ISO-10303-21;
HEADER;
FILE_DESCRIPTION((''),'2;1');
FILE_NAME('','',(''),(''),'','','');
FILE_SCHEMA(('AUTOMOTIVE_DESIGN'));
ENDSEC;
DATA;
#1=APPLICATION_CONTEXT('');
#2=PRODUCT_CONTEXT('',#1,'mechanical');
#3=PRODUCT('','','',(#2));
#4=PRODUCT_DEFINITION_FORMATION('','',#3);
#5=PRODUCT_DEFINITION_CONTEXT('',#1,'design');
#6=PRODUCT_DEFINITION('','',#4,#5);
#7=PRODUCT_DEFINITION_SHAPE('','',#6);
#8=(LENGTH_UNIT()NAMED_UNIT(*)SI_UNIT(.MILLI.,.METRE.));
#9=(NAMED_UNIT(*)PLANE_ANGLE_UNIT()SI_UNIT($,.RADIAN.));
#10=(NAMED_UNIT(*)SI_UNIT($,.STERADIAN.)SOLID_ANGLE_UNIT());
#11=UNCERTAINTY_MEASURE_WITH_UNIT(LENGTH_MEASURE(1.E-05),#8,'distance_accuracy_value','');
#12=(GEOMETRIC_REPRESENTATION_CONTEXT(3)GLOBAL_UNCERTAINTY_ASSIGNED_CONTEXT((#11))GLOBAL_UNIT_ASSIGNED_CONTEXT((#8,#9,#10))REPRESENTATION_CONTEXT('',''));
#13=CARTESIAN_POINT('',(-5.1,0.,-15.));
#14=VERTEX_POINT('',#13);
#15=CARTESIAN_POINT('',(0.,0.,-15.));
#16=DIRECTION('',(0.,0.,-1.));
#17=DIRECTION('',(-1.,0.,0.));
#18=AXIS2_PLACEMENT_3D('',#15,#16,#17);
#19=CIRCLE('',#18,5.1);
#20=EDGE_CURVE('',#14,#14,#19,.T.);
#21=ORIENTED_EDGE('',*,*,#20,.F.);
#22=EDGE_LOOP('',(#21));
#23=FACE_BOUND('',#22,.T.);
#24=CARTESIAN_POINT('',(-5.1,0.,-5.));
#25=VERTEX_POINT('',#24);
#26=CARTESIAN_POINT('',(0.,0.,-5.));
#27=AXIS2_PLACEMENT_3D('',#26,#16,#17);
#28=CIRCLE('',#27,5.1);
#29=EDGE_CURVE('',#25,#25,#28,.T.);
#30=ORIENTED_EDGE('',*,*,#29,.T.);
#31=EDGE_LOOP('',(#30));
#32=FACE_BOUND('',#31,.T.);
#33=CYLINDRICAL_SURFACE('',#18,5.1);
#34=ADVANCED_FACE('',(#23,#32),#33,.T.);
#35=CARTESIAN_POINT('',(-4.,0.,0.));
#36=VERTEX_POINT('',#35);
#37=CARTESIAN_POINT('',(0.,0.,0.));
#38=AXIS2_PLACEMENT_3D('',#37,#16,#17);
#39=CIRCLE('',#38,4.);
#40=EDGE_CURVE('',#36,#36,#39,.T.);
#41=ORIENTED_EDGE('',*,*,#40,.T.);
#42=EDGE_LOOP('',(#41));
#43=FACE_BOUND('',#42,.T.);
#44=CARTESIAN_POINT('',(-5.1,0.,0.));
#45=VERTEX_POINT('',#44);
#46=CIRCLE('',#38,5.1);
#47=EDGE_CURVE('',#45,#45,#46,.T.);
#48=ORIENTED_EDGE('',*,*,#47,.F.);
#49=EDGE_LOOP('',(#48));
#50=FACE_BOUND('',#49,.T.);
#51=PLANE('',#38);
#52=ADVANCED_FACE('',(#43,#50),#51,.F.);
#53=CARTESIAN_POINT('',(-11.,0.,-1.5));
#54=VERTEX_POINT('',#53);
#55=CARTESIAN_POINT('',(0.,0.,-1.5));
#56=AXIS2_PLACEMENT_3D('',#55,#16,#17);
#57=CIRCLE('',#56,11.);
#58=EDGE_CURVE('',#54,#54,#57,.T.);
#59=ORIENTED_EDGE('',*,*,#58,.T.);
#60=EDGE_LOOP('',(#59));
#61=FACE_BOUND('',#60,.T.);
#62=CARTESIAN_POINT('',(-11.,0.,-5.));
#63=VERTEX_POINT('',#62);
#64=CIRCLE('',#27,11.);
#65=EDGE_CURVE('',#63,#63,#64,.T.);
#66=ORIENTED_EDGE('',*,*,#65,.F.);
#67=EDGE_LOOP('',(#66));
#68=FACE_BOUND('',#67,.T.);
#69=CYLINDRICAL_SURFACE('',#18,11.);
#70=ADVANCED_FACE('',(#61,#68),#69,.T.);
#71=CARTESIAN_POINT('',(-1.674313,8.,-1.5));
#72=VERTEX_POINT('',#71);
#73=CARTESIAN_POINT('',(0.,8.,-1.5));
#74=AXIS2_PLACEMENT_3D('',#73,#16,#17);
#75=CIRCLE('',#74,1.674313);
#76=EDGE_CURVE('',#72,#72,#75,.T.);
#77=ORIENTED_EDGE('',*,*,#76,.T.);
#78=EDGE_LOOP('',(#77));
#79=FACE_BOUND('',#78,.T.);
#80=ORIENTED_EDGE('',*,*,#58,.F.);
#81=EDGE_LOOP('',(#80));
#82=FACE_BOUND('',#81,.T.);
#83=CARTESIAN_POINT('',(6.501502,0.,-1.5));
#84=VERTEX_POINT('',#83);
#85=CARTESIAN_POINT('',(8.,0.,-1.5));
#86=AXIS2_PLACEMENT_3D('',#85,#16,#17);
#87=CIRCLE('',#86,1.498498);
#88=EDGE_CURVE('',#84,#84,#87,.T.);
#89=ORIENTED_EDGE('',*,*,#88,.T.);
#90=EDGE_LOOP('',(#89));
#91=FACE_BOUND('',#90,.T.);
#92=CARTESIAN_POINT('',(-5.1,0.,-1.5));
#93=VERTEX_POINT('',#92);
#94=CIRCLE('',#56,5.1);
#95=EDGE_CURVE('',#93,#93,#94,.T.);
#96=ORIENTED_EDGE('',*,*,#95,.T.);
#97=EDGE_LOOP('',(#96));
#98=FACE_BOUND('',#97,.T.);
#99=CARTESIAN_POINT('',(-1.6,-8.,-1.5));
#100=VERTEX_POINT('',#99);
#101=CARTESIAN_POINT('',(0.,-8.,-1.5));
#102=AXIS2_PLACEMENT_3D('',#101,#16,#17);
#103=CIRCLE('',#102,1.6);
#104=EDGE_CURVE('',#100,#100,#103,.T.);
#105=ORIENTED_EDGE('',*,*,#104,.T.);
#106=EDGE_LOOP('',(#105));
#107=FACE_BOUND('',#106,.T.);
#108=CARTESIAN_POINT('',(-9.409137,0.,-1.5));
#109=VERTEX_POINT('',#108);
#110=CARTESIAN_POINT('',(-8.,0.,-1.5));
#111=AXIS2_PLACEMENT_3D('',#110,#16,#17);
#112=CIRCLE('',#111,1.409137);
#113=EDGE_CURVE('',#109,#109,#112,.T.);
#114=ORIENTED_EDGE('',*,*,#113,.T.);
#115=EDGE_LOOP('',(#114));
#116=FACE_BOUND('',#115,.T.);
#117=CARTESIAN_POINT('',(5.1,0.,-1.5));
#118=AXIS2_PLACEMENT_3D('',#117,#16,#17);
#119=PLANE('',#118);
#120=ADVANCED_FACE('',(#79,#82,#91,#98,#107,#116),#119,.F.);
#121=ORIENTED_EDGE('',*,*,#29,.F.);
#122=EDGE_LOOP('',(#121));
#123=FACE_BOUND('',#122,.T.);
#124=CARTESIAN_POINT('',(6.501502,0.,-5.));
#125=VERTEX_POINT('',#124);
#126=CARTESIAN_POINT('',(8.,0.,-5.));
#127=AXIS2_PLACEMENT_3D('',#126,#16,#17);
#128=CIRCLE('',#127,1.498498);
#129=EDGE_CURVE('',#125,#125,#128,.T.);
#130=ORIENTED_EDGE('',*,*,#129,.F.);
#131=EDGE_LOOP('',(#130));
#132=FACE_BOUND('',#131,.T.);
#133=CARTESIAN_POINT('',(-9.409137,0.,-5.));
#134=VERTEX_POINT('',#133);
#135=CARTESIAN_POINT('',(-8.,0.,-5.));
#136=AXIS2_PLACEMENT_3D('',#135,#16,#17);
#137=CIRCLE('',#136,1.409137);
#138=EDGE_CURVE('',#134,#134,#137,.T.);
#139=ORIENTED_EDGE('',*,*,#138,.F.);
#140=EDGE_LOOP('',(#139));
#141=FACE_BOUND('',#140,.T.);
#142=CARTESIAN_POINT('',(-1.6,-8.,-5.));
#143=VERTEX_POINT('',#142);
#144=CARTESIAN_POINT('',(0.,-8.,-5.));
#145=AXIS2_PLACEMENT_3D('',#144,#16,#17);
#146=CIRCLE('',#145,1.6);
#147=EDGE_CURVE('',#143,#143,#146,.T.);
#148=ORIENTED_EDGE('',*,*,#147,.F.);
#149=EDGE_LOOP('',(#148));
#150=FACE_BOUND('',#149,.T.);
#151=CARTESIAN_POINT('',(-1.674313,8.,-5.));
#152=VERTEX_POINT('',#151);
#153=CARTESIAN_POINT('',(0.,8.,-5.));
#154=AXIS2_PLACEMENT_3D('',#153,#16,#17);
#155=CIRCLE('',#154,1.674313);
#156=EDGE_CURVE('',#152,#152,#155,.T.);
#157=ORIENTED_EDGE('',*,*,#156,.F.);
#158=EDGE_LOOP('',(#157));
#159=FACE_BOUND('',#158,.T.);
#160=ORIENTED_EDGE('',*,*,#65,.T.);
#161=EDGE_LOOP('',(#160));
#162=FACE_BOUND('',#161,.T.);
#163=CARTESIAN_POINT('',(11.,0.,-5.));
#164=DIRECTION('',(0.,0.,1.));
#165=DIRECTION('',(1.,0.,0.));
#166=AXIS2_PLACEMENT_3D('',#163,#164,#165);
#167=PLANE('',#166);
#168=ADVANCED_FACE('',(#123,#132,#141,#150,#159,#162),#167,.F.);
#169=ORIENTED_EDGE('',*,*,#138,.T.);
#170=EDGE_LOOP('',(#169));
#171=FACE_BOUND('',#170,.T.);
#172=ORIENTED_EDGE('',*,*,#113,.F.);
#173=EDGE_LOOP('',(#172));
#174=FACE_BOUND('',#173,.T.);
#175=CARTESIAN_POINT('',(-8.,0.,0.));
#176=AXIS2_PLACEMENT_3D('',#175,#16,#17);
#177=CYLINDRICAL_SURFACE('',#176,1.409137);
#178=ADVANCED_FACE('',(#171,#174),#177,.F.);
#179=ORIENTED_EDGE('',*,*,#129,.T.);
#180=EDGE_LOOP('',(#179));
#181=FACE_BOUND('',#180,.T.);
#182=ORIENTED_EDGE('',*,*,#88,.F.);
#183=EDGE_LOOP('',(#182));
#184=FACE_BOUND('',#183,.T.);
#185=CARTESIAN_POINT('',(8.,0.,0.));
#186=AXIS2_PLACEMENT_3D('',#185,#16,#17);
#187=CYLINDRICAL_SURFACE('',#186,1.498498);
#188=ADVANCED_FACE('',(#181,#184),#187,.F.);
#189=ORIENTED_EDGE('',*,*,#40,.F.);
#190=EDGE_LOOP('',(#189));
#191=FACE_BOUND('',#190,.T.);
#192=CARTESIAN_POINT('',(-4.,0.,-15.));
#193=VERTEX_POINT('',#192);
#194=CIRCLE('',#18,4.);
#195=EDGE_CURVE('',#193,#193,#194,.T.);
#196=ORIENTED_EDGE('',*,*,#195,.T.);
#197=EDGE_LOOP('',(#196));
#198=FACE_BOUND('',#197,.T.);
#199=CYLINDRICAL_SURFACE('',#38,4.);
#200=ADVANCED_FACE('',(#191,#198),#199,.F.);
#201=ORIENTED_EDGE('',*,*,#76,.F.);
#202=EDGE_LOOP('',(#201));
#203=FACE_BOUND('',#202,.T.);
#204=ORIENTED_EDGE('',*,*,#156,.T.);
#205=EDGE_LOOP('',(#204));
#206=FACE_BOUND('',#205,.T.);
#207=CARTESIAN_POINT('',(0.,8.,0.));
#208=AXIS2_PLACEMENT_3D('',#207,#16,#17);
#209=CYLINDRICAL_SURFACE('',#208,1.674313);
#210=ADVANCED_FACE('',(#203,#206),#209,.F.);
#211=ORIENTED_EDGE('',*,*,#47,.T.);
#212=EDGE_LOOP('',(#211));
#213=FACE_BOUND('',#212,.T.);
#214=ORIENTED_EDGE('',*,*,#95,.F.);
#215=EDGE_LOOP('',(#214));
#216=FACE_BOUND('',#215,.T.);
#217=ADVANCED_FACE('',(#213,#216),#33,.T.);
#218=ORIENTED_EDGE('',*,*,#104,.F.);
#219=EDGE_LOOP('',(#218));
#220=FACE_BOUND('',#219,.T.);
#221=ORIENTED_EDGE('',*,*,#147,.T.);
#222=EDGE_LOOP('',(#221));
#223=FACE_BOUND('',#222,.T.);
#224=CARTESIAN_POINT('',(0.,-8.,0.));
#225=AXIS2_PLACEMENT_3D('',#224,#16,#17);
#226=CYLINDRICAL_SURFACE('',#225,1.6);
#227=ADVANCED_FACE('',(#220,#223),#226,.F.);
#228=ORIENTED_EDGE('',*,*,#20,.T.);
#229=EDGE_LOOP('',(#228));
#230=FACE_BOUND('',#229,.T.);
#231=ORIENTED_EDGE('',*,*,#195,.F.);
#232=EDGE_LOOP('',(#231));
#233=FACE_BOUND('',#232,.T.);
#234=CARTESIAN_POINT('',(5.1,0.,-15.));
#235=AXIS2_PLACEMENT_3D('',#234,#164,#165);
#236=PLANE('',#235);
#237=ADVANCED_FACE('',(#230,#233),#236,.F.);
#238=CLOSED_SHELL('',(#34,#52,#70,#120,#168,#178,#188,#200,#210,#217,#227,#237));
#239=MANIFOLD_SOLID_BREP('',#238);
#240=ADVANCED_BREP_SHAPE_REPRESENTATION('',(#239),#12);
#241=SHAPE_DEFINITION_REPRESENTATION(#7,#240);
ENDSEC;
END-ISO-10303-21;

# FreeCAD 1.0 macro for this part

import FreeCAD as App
import Part
import Sketcher
Q = App.Units.Quantity

doc = App.newDocument("Part")
body = doc.addObject("PartDesign::Body", "Body")

# Sketch on XZ plane
sketch1 = body.newObject("Sketcher::SketchObject", "Sketch")
sketch1.AttachmentSupport = (doc.getObject("XZ_Plane"), [""])
sketch1.MapMode = "FlatFace"
sketch1.addGeometry([
    Part.LineSegment(App.Vector(0, 0, 0), App.Vector(5.1, 0, 0)),  # 0
    Part.LineSegment(App.Vector(5.1, 0, 0), App.Vector(5.1, -1.5, 0)),  # 1
    Part.LineSegment(App.Vector(5.1, -1.5, 0), App.Vector(11, -1.5, 0)),  # 2
    Part.LineSegment(App.Vector(11, -1.5, 0), App.Vector(11, -5, 0)),  # 3
    Part.LineSegment(App.Vector(11, -5, 0), App.Vector(5.1, -5, 0)),  # 4
    Part.LineSegment(App.Vector(5.1, -5, 0), App.Vector(5.1, -15, 0)),  # 5
    Part.LineSegment(App.Vector(5.1, -15, 0), App.Vector(0, -15, 0)),  # 6
    Part.LineSegment(App.Vector(0, -15, 0), App.Vector(0, 0, 0)),  # 7
], False)
sketch1.addConstraint([
    Sketcher.Constraint("Coincident", 0, 2, 1, 1),
    Sketcher.Constraint("Coincident", 1, 2, 2, 1),
    Sketcher.Constraint("Coincident", 2, 2, 3, 1),
    Sketcher.Constraint("Coincident", 3, 2, 4, 1),
    Sketcher.Constraint("Coincident", 4, 2, 5, 1),
    Sketcher.Constraint("Coincident", 5, 2, 6, 1),
    Sketcher.Constraint("Coincident", 6, 2, 7, 1),
    Sketcher.Constraint("Coincident", 7, 2, 0, 1),
    Sketcher.Constraint("Horizontal", 0),
    Sketcher.Constraint("Vertical", 1),
    Sketcher.Constraint("Horizontal", 2),
    Sketcher.Constraint("Vertical", 3),
    Sketcher.Constraint("Horizontal", 4),
    Sketcher.Constraint("Vertical", 5),
    Sketcher.Constraint("Horizontal", 6),
    Sketcher.Constraint("Vertical", 7),
    Sketcher.Constraint("Coincident", 7, 2, -1, 1),
    Sketcher.Constraint("Vertical", 1, 2, 4, 2),
    Sketcher.Constraint("DistanceY", 5, 2, 5, 1, Q("10 mm")),
    Sketcher.Constraint("DistanceY", 7, 1, 7, 2, Q("15 mm")),
    Sketcher.Constraint("DistanceX", 0, 1, 0, 2, Q("5.1 mm")),
    Sketcher.Constraint("DistanceX", 2, 1, 2, 2, Q("5.9 mm")),
    Sketcher.Constraint("DistanceY", 1, 2, 1, 1, Q("1.5 mm")),
])
revolution = body.newObject("PartDesign::Revolution", "Revolution")
revolution.Profile = sketch1
revolution.ReferenceAxis = (sketch1, ["V_Axis"])
revolution.Angle = 360

# Sketch on XY plane
sketch2 = body.newObject("Sketcher::SketchObject", "Sketch001")
sketch2.AttachmentSupport = (doc.getObject("XY_Plane"), [""])
sketch2.MapMode = "FlatFace"
sketch2.AttachmentOffset = App.Placement(App.Vector(0, 0, -15), App.Rotation())
sketch2.addGeometry(Part.Circle(App.Vector(0, 0, 0), App.Vector(0, 0, 1), 4), False)
sketch2.addConstraint([
    Sketcher.Constraint("Coincident", 0, 3, -1, 1),
    Sketcher.Constraint("Diameter", 0, Q("8 mm")),
])
pocket1 = body.newObject("PartDesign::Pocket", "Pocket")
pocket1.Profile = sketch2
pocket1.Type = "ThroughAll"
pocket1.Reversed = True

# Sketch on XY plane
sketch3 = body.newObject("Sketcher::SketchObject", "Sketch002")
sketch3.AttachmentSupport = (doc.getObject("XY_Plane"), [""])
sketch3.MapMode = "FlatFace"
sketch3.AttachmentOffset = App.Placement(App.Vector(0, 0, -5), App.Rotation())
sketch3.addGeometry([
    Part.Circle(App.Vector(-8, 0, 0), App.Vector(0, 0, 1), 1.4),
    Part.Circle(App.Vector(0, -8, 0), App.Vector(0, 0, 1), 1.6),
    Part.Circle(App.Vector(8, 0, 0), App.Vector(0, 0, 1), 1.5),
    Part.Circle(App.Vector(0, 8, 0), App.Vector(0, 0, 1), 1.7),
], False)
sketch3.addConstraint([
    Sketcher.Constraint("Symmetric", 0, 3, 2, 3, -1, 1),
    Sketcher.Constraint("Symmetric", 1, 3, 3, 3, -1, 1),
    Sketcher.Constraint("PointOnObject", 0, 3, -1),
    Sketcher.Constraint("PointOnObject", 1, 3, -2),
    Sketcher.Constraint("Diameter", 1, Q("3.2 mm")),
    Sketcher.Constraint("DistanceX", 0, 3, -1, 1, Q("8 mm")),
    Sketcher.Constraint("DistanceY", 1, 3, -1, 1, Q("8 mm")),
    Sketcher.Constraint("Diameter", 0, Q("2.818274 mm")),
    Sketcher.Constraint("Diameter", 2, Q("2.996996 mm")),
    Sketcher.Constraint("Diameter", 3, Q("3.348626 mm")),
])
pocket2 = body.newObject("PartDesign::Pocket", "Pocket001")
pocket2.Profile = sketch3
pocket2.Type = "ThroughAll"
pocket2.Reversed = True

doc.recompute()
